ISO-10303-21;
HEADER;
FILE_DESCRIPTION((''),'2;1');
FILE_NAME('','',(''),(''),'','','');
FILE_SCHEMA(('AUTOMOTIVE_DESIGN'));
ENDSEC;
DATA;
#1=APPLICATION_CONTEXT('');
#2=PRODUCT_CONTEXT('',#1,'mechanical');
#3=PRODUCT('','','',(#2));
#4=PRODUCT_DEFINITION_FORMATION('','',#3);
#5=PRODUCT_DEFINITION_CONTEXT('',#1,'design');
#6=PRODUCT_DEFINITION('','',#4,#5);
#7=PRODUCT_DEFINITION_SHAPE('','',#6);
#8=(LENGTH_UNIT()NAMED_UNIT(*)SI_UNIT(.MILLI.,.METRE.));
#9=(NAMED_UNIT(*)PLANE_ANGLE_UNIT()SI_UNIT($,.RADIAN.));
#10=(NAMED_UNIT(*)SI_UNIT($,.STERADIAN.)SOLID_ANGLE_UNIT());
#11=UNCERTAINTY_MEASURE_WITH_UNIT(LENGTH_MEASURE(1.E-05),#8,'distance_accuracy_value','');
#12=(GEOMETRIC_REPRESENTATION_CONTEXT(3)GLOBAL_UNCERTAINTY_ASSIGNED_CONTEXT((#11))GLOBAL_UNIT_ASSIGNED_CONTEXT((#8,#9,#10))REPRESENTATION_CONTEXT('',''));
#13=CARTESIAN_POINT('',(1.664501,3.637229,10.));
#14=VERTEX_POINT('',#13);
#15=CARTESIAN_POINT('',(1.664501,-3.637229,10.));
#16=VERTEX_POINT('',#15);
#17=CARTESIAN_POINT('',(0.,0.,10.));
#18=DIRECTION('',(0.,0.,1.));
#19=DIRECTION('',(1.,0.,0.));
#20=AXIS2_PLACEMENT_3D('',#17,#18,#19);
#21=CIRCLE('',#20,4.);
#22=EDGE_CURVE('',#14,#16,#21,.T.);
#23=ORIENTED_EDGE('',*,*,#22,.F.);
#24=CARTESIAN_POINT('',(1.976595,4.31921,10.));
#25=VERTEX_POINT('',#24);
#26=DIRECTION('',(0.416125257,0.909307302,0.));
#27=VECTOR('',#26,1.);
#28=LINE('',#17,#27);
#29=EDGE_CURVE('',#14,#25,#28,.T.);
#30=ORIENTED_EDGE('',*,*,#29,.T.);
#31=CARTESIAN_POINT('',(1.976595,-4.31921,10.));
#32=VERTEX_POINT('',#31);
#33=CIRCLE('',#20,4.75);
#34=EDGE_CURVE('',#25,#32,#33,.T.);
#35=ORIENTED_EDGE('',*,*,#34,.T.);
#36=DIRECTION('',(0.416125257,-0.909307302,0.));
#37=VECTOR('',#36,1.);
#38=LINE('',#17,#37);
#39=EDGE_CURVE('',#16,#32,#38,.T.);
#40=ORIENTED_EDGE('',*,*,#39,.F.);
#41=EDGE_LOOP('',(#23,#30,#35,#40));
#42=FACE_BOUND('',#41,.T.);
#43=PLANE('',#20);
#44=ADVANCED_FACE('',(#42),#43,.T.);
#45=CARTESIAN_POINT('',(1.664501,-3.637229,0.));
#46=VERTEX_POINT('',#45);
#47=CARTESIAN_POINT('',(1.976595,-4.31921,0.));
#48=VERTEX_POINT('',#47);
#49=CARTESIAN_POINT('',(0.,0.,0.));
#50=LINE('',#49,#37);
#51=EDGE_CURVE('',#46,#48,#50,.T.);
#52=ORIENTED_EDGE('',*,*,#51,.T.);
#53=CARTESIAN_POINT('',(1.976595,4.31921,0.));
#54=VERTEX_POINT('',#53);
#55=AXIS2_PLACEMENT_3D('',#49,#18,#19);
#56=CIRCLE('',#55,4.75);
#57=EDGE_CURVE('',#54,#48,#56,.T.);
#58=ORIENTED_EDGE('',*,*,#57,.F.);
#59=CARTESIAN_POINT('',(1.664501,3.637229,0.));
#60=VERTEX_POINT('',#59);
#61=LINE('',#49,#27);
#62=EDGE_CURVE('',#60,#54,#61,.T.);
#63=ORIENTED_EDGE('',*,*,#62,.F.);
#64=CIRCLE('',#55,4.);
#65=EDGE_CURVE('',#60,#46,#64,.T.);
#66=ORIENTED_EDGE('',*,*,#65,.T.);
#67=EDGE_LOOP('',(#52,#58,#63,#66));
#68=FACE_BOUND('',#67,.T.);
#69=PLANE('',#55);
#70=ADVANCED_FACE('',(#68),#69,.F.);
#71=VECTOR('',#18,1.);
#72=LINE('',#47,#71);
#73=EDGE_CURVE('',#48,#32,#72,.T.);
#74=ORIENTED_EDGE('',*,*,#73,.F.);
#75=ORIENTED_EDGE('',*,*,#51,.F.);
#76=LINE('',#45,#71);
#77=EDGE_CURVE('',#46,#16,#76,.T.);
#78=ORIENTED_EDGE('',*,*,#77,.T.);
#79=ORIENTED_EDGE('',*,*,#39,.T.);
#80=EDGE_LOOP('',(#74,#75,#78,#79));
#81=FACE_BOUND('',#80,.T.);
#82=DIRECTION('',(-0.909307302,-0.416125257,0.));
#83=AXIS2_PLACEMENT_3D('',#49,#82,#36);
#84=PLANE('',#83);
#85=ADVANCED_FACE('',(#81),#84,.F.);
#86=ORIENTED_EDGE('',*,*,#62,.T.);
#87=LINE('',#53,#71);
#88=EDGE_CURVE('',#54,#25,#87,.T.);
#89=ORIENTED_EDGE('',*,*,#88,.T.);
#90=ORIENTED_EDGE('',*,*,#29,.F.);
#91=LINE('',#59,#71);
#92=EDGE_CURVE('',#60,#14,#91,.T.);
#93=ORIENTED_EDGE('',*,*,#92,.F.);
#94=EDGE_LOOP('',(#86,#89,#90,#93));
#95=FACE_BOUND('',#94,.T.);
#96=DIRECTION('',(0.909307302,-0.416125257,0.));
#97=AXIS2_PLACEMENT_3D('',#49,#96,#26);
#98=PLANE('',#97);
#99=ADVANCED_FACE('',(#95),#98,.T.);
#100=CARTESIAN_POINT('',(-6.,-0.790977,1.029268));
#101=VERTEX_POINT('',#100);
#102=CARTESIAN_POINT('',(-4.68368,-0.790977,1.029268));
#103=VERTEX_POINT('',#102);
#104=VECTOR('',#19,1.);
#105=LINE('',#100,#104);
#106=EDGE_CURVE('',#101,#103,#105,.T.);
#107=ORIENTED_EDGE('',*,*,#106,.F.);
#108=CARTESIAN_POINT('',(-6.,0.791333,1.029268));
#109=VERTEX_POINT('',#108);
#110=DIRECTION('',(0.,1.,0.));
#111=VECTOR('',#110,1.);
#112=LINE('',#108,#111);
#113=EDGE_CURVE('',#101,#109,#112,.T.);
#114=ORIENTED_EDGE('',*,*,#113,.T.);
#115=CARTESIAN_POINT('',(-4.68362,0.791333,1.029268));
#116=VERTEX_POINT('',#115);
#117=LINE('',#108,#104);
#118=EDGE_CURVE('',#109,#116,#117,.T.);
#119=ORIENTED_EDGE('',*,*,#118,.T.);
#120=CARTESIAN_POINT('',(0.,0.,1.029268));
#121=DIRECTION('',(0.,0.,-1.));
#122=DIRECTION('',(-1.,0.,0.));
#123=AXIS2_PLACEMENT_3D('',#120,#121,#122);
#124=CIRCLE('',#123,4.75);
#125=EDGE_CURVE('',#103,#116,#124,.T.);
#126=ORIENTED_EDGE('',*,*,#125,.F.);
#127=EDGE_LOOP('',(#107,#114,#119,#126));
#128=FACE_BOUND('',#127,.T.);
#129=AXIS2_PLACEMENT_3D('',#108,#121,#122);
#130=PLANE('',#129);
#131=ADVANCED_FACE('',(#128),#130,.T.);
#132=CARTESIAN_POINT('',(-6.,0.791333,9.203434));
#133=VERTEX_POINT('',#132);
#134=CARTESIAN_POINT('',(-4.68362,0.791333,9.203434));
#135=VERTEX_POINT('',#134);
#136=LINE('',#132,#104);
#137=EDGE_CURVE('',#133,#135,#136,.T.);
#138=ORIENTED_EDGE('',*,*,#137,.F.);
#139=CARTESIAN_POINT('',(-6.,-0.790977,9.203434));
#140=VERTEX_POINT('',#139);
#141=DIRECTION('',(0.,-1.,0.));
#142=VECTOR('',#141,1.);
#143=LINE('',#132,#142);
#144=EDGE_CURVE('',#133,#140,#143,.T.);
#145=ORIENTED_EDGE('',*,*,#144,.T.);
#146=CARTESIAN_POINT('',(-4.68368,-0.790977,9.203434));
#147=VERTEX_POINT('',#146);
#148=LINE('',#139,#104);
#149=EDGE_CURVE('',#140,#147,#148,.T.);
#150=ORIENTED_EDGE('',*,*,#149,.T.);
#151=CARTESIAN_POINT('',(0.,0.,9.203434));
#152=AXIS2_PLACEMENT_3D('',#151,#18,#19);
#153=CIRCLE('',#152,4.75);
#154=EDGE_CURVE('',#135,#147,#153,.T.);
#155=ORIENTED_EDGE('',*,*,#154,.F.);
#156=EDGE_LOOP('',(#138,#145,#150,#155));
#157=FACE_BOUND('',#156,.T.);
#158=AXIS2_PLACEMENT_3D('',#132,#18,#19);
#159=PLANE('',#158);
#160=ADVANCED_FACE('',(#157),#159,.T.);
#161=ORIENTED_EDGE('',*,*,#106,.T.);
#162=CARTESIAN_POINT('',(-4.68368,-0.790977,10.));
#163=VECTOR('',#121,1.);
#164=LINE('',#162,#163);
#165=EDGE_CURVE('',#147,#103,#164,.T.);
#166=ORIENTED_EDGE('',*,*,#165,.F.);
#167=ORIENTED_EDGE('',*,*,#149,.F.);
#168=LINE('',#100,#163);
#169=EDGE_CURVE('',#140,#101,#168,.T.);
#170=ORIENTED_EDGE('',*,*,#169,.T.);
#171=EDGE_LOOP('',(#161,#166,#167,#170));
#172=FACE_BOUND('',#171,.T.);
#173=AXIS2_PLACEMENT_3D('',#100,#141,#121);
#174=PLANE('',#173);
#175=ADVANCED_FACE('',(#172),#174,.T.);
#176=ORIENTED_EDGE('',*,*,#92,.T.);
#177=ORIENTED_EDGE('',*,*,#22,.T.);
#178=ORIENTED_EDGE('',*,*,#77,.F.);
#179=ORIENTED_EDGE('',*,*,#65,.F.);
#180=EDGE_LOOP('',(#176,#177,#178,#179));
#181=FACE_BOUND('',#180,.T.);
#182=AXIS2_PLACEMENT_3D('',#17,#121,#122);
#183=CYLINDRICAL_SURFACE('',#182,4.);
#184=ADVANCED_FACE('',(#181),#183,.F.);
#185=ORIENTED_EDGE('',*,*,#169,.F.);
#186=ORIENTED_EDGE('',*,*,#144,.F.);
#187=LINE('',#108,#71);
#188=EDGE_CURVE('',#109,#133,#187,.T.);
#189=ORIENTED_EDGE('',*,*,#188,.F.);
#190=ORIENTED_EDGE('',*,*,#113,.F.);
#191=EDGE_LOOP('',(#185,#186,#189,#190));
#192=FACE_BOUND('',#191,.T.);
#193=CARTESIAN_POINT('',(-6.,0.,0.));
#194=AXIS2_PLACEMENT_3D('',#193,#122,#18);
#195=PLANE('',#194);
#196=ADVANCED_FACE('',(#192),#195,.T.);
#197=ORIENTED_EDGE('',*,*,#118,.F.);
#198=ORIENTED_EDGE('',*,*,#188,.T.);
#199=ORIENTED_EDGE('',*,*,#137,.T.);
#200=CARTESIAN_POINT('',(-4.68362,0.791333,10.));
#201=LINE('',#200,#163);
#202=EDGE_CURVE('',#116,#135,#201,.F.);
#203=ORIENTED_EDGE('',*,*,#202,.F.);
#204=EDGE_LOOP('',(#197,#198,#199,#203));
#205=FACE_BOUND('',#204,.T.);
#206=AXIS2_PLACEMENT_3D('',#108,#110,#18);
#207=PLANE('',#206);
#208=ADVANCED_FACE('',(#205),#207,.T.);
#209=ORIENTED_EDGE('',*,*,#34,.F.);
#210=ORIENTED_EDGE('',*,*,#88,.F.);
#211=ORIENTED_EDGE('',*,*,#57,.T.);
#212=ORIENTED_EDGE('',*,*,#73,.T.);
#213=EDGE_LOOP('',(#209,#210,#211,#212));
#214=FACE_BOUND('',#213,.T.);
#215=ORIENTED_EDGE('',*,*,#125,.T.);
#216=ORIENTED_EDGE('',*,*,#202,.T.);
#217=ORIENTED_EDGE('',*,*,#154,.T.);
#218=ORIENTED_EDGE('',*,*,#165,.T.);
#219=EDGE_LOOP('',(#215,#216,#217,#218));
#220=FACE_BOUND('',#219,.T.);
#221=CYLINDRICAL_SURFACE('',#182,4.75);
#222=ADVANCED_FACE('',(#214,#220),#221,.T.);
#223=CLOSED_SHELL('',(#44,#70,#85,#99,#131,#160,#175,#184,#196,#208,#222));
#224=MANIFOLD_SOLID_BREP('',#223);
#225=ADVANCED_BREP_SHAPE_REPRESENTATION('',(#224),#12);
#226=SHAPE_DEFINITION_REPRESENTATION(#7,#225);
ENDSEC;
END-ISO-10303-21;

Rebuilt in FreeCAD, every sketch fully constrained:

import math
import FreeCAD as App
import Part
import Sketcher
Q = App.Units.Quantity


def add_polygon(sketch, points):
    """Adds a closed chain of lines whose ends are joined by coincident constraints."""
    first, n = sketch.GeometryCount, len(points)
    for a, b in zip(points, points[1:] + points[:1]):
        sketch.addGeometry(Part.LineSegment(App.Vector(*a, 0), App.Vector(*b, 0)), False)
    for i in range(n):
        sketch.addConstraint(Sketcher.Constraint("Coincident", first + i, 2, first + (i + 1) % n, 1))

doc = App.newDocument("Part")
body = doc.addObject("PartDesign::Body", "Body")

# Sketch on XY plane
sketch1 = body.newObject("Sketcher::SketchObject", "Sketch")
sketch1.AttachmentSupport = (doc.getObject("XY_Plane"), [""])
sketch1.MapMode = "FlatFace"
sketch1.addGeometry([
    Part.Circle(App.Vector(0, 0, 0), App.Vector(0, 0, 1), 4.8),
    Part.Circle(App.Vector(0, 0, 0), App.Vector(0, 0, 1), 4),
], False)
sketch1.addConstraint([
    Sketcher.Constraint("Coincident", 0, 3, -1, 1),
    Sketcher.Constraint("Coincident", 1, 3, -1, 1),
    Sketcher.Constraint("Diameter", 1, Q("8 mm")),
    Sketcher.Constraint("Diameter", 0, Q("9.5 mm")),
])
pad1 = body.newObject("PartDesign::Pad", "Pad")
pad1.Profile = sketch1
pad1.Length = 10

# Sketch on XY plane
sketch2 = body.newObject("Sketcher::SketchObject", "Sketch001")
sketch2.AttachmentSupport = (doc.getObject("XY_Plane"), [""])
sketch2.MapMode = "FlatFace"
sketch2.AttachmentOffset = App.Placement(App.Vector(0, 0, 10), App.Rotation())
sketch2.addGeometry([
    Part.ArcOfCircle(Part.Circle(App.Vector(0, 0, 0), App.Vector(0, 0, 1), 4), math.radians(0), math.radians(65.409801)),  # 0
    Part.ArcOfCircle(Part.Circle(App.Vector(0, 0, 0), App.Vector(0, 0, 1), 4), math.radians(-65.409801), math.radians(0)),  # 1
    Part.LineSegment(App.Vector(1.664501, -3.637229, 0), App.Vector(1.976595, -4.31921, 0)),  # 2
    Part.ArcOfCircle(Part.Circle(App.Vector(0, 0, 0), App.Vector(0, 0, 1), 4.75), math.radians(-65.409801), math.radians(0)),  # 3
    Part.ArcOfCircle(Part.Circle(App.Vector(0.000056, 0, 0), App.Vector(0, 0, 1), 4.749944), math.radians(0), math.radians(0.178783)),  # 4
    Part.ArcOfCircle(Part.Circle(App.Vector(0, 0, 0), App.Vector(0, 0, 1), 4.75), math.radians(0.17878), math.radians(65.409801)),  # 5
    Part.LineSegment(App.Vector(1.976595, 4.31921, 0), App.Vector(1.664501, 3.637229, 0)),  # 6
], False)
sketch2.addConstraint([
    Sketcher.Constraint("Coincident", 0, 1, 1, 2),
    Sketcher.Constraint("Coincident", 1, 1, 2, 1),
    Sketcher.Constraint("Coincident", 2, 2, 3, 1),
    Sketcher.Constraint("Coincident", 3, 2, 4, 1),
    Sketcher.Constraint("Coincident", 4, 2, 5, 1),
    Sketcher.Constraint("Coincident", 5, 2, 6, 1),
    Sketcher.Constraint("Coincident", 6, 2, 0, 2),
    Sketcher.Constraint("Coincident", 0, 3, -1, 1),
    Sketcher.Constraint("Coincident", 1, 3, -1, 1),
    Sketcher.Constraint("Coincident", 3, 3, -1, 1),
    Sketcher.Constraint("Coincident", 5, 3, -1, 1),
    Sketcher.Constraint("PointOnObject", 4, 3, -1),
    Sketcher.Constraint("PointOnObject", 0, 1, -1),
    Sketcher.Constraint("PointOnObject", 3, 2, -1),
    Sketcher.Constraint("Radius", 0, Q("4 mm")),
    Sketcher.Constraint("Radius", 3, Q("4.75 mm")),
    Sketcher.Constraint("Radius", 4, Q("4.749944 mm")),
    Sketcher.Constraint("DistanceX", -1, 1, 1, 1, Q("1.664501 mm")),
    Sketcher.Constraint("DistanceX", -1, 1, 6, 2, Q("1.664501 mm")),
    Sketcher.Constraint("DistanceY", 2, 2, -1, 1, Q("4.31921 mm")),
    Sketcher.Constraint("DistanceY", -1, 1, 4, 2, Q("0.014821 mm")),
    Sketcher.Constraint("DistanceY", -1, 1, 5, 2, Q("4.31921 mm")),
])
pocket1 = body.newObject("PartDesign::Pocket", "Pocket")
pocket1.Profile = sketch2
pocket1.Length = 10

# Sketch on YZ plane
sketch3 = body.newObject("Sketcher::SketchObject", "Sketch002")
sketch3.AttachmentSupport = (doc.getObject("YZ_Plane"), [""])
sketch3.MapMode = "FlatFace"
sketch3.AttachmentOffset = App.Placement(App.Vector(0, 0, -4.5), App.Rotation())
add_polygon(sketch3, [(0.8, 9.2), (-0.8, 9.2), (-0.8, 1), (0.8, 1)])  # lines 0-3
sketch3.addConstraint([
    Sketcher.Constraint("Horizontal", 0),
    Sketcher.Constraint("Vertical", 1),
    Sketcher.Constraint("Horizontal", 2),
    Sketcher.Constraint("Vertical", 3),
    Sketcher.Constraint("DistanceX", 0, 2, 0, 1, Q("1.58231 mm")),
    Sketcher.Constraint("DistanceY", 1, 2, 1, 1, Q("8.174166 mm")),
    Sketcher.Constraint("DistanceX", 0, 2, -1, 1, Q("0.790977 mm")),
    Sketcher.Constraint("DistanceY", -1, 1, 0, 2, Q("9.203434 mm")),
])
pad2 = body.newObject("PartDesign::Pad", "Pad001")
pad2.Profile = sketch3
pad2.Length = 1.5
pad2.Reversed = True

doc.recompute()
